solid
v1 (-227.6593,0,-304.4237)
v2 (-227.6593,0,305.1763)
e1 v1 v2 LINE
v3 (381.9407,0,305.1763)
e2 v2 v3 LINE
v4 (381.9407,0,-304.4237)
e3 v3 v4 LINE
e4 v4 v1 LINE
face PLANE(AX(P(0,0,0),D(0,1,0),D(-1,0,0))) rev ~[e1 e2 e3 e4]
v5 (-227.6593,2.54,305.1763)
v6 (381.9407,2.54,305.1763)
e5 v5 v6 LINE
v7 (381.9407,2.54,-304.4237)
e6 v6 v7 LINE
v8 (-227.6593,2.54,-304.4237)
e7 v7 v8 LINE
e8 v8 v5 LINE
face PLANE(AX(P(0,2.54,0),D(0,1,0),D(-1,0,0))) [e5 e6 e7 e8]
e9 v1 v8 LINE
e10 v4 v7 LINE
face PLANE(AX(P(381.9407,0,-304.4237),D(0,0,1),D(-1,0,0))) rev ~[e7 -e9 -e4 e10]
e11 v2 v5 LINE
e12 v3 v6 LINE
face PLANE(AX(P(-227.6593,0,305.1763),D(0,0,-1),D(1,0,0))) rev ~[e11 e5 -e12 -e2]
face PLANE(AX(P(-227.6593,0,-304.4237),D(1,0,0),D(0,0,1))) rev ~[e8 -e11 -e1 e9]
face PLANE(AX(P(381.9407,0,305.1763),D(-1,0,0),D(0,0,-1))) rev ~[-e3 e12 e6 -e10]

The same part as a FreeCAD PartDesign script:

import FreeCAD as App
import Part
import Sketcher

V = App.Vector
Q = App.Units.Quantity


def add_polygon(sketch, points):
    """Adds a closed chain of lines whose ends are joined by coincident constraints."""
    first, n = sketch.GeometryCount, len(points)
    for a, b in zip(points, points[1:] + points[:1]):
        sketch.addGeometry(Part.LineSegment(App.Vector(*a, 0), App.Vector(*b, 0)), False)
    for i in range(n):
        sketch.addConstraint(Sketcher.Constraint("Coincident", first + i, 2, first + (i + 1) % n, 1))

doc = App.newDocument("Part")
body = doc.addObject("PartDesign::Body", "Body")

sketch1 = body.newObject("Sketcher::SketchObject", "Sketch")
sketch1.AttachmentSupport = (doc.getObject("XZ_Plane"), [""])
sketch1.MapMode = "FlatFace"
add_polygon(sketch1, [(-228, -304), (-228, 305), (382, 305), (382, -304)])
sketch1.addConstraint(Sketcher.Constraint("Vertical", 0))
sketch1.addConstraint(Sketcher.Constraint("Horizontal", 1))
sketch1.addConstraint(Sketcher.Constraint("Vertical", 2))
sketch1.addConstraint(Sketcher.Constraint("Horizontal", 3))
sketch1.addConstraint(Sketcher.Constraint("Equal", 3, 0))
sketch1.addConstraint(Sketcher.Constraint("DistanceX", 1, 1, 1, 2, Q("24 in")))
sketch1.addConstraint(Sketcher.Constraint("DistanceX", 0, 2, -1, 1, Q("227.6593 mm")))
sketch1.addConstraint(Sketcher.Constraint("DistanceY", -1, 1, 0, 2, Q("305.1763 mm")))
pad1 = body.newObject("PartDesign::Pad", "Pad")
pad1.Profile = sketch1
pad1.Length = Q("0.1 in")
pad1.Reversed = True

doc.recompute()
